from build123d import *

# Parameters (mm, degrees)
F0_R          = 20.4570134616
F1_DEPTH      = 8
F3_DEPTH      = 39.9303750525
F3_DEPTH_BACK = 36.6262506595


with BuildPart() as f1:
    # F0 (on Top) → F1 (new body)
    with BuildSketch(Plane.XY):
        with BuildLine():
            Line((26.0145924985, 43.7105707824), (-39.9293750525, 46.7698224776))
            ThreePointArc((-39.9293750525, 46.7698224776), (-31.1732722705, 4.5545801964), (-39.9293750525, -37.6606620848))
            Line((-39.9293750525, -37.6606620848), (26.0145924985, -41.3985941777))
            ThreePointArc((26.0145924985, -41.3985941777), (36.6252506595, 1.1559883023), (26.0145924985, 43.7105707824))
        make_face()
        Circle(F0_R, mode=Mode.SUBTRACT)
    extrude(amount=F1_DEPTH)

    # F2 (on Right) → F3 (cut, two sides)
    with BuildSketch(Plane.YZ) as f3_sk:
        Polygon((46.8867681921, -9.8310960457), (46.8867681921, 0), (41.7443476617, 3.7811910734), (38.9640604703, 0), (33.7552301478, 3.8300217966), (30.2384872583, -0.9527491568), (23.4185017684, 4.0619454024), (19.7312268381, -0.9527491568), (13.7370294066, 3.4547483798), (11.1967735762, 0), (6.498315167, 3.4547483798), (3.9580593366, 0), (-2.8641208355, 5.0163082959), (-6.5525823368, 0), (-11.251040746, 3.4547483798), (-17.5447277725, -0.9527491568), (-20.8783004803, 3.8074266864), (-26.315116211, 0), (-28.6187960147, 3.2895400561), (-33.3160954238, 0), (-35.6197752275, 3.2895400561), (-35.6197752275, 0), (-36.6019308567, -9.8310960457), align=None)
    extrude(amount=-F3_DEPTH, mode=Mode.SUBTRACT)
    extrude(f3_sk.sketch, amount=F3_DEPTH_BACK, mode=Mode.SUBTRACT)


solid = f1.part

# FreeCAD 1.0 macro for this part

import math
import FreeCAD as App
import Part
import Sketcher
from FreeCAD import Vector
Q = App.Units.Quantity


def add_polygon(sketch, points):
    """Adds a closed chain of lines whose ends are joined by coincident constraints."""
    first, n = sketch.GeometryCount, len(points)
    for a, b in zip(points, points[1:] + points[:1]):
        sketch.addGeometry(Part.LineSegment(App.Vector(*a, 0), App.Vector(*b, 0)), False)
    for i in range(n):
        sketch.addConstraint(Sketcher.Constraint("Coincident", first + i, 2, first + (i + 1) % n, 1))

doc = App.newDocument("Part")
body = doc.addObject("PartDesign::Body", "Body")

# Sketch on XY plane
sketch1 = body.newObject("Sketcher::SketchObject", "Sketch")
sketch1.AttachmentSupport = (doc.getObject("XY_Plane"), [""])
sketch1.MapMode = "FlatFace"
sketch1.addGeometry([
    Part.LineSegment(Vector(26.014592, 43.710571, 0), Vector(-39.929375, 46.769822, 0)),  # 0
    Part.ArcOfCircle(Part.Circle(Vector(-137.316157, 4.55458, 0), Vector(0, 0, 1), 106.142885), math.radians(-23.435777), math.radians(23.435777)),  # 1
    Part.LineSegment(Vector(-39.929375, -37.660662, 0), Vector(26.014592, -41.398594, 0)),  # 2
    Part.ArcOfCircle(Part.Circle(Vector(-54.013734, 1.155988, 0), Vector(0, 0, 1), 90.638984), math.radians(-28.001544), math.radians(28.001544)),  # 3
    Part.Circle(Vector(0, 0, 0), Vector(0, 0, 1), 20.457013),  # 4
], False)
sketch1.addConstraint([
    Sketcher.Constraint("Coincident", 0, 2, 1, 2),
    Sketcher.Constraint("Coincident", 1, 1, 2, 1),
    Sketcher.Constraint("Coincident", 2, 2, 3, 1),
    Sketcher.Constraint("Coincident", 3, 2, 0, 1),
    Sketcher.Constraint("Coincident", 4, 3, -1, 1),
    Sketcher.Constraint("Vertical", 0, 2, 1, 1),
    Sketcher.Constraint("Vertical", 2, 2, 3, 2),
    Sketcher.Constraint("Diameter", 4, Q("40.914027 mm")),
    Sketcher.Constraint("Radius", 1, Q("106.142885 mm")),
    Sketcher.Constraint("Radius", 3, Q("90.638984 mm")),
    Sketcher.Constraint("Distance", 0, Q("66.014891 mm")),
    Sketcher.Constraint("DistanceY", -1, 1, 1, 3, Q("4.55458 mm")),
    Sketcher.Constraint("DistanceY", -1, 1, 3, 3, Q("1.155988 mm")),
    Sketcher.Constraint("DistanceY", -1, 1, 3, 2, Q("43.710571 mm")),
    Sketcher.Constraint("DistanceX", 3, 3, 0, 2, Q("14.084359 mm")),
    Sketcher.Constraint("DistanceX", 1, 3, -1, 1, Q("137.316157 mm")),
])
pad1 = body.newObject("PartDesign::Pad", "Pad")
pad1.Profile = sketch1
pad1.Length = 8

# Sketch on YZ plane
sketch2 = body.newObject("Sketcher::SketchObject", "Sketch001")
sketch2.AttachmentSupport = (doc.getObject("YZ_Plane"), [""])
sketch2.MapMode = "FlatFace"
add_polygon(sketch2, [(46.886768, -9.831096), (46.886768, 0), (41.744348, 3.781191), (38.96406, 0), (33.75523, 3.830022), (30.238487, -0.952749), (23.418502, 4.061945), (19.731227, -0.952749), (13.737029, 3.454748), (11.196774, 0), (6.498315, 3.454748), (3.958059, 0), (-2.864121, 5.016308), (-6.552582, 0), (-11.251041, 3.454748), (-17.544728, -0.952749), (-20.8783, 3.807427), (-26.315116, 0), (-28.618796, 3.28954), (-33.316095, 0), (-35.619775, 3.28954), (-35.619775, 0), (-36.601931, -9.831096)])  # lines 0-22
sketch2.addConstraint([
    Sketcher.Constraint("Vertical", 0),
    Sketcher.Constraint("Vertical", 20),
    Sketcher.Constraint("Horizontal", 22),
    Sketcher.Constraint("PointOnObject", 0, 2, -1),
    Sketcher.Constraint("PointOnObject", 2, 2, -1),
    Sketcher.Constraint("PointOnObject", 8, 2, -1),
    Sketcher.Constraint("PointOnObject", 10, 2, -1),
    Sketcher.Constraint("PointOnObject", 12, 2, -1),
    Sketcher.Constraint("PointOnObject", 16, 2, -1),
    Sketcher.Constraint("PointOnObject", 18, 2, -1),
    Sketcher.Constraint("PointOnObject", 20, 2, -1),
    Sketcher.Constraint("Perpendicular", 1, 2),
    Sketcher.Constraint("Perpendicular", 2, 3),
    Sketcher.Constraint("Perpendicular", 3, 4),
    Sketcher.Constraint("Perpendicular", 4, 5),
    Sketcher.Constraint("Perpendicular", 5, 6),
    Sketcher.Constraint("Perpendicular", 6, 7),
    Sketcher.Constraint("Perpendicular", 7, 8),
    Sketcher.Constraint("Perpendicular", 8, 9),
    Sketcher.Constraint("Perpendicular", 9, 10),
    Sketcher.Constraint("Perpendicular", 10, 11),
    Sketcher.Constraint("Perpendicular", 11, 12),
    Sketcher.Constraint("Perpendicular", 12, 13),
    Sketcher.Constraint("Perpendicular", 14, 15),
    Sketcher.Constraint("Perpendicular", 15, 16),
    Sketcher.Constraint("Perpendicular", 16, 17),
    Sketcher.Constraint("Perpendicular", 17, 18),
    Sketcher.Constraint("Perpendicular", 18, 19),
    Sketcher.Constraint("Horizontal", 4, 2, 6, 2),
    Sketcher.Constraint("Horizontal", 7, 2, 9, 2),
    Sketcher.Constraint("Horizontal", 9, 2, 13, 2),
    Sketcher.Constraint("Horizontal", 6, 2, 14, 2),
    Sketcher.Constraint("Horizontal", 17, 2, 19, 2),
    Sketcher.Constraint("DistanceX", 22, 1, 22, 2, Q("83.488699 mm")),
    Sketcher.Constraint("Distance", 6, Q("6.2244 mm")),
    Sketcher.Constraint("DistanceY", 20, 2, 20, 1, Q("3.28954 mm")),
    Sketcher.Constraint("DistanceX", -1, 1, 5, 2, Q("23.418502 mm")),
    Sketcher.Constraint("DistanceX", 15, 2, -1, 1, Q("20.8783 mm")),
    Sketcher.Constraint("DistanceX", 7, 2, 3, 2, Q("20.018201 mm")),
    Sketcher.Constraint("DistanceX", 13, 2, 10, 2, Q("15.2091 mm")),
    Sketcher.Constraint("DistanceX", 18, 2, 17, 2, Q("4.697299 mm")),
    Sketcher.Constraint("Distance", 4, Q("5.936529 mm")),
    Sketcher.Constraint("Distance", 7, Q("7.440191 mm")),
    Sketcher.Constraint("Distance", 11, Q("8.467909 mm")),
    Sketcher.Constraint("DistanceY", 0, 1, 0, 2, Q("9.831096 mm")),
    Sketcher.Constraint("DistanceX", -1, 1, 0, 2, Q("46.886768 mm")),
])
pocket1 = body.newObject("PartDesign::Pocket", "Pocket")
pocket1.Profile = sketch2
pocket1.Type = "ThroughAll"
pocket1.Midplane = True

doc.recompute()
